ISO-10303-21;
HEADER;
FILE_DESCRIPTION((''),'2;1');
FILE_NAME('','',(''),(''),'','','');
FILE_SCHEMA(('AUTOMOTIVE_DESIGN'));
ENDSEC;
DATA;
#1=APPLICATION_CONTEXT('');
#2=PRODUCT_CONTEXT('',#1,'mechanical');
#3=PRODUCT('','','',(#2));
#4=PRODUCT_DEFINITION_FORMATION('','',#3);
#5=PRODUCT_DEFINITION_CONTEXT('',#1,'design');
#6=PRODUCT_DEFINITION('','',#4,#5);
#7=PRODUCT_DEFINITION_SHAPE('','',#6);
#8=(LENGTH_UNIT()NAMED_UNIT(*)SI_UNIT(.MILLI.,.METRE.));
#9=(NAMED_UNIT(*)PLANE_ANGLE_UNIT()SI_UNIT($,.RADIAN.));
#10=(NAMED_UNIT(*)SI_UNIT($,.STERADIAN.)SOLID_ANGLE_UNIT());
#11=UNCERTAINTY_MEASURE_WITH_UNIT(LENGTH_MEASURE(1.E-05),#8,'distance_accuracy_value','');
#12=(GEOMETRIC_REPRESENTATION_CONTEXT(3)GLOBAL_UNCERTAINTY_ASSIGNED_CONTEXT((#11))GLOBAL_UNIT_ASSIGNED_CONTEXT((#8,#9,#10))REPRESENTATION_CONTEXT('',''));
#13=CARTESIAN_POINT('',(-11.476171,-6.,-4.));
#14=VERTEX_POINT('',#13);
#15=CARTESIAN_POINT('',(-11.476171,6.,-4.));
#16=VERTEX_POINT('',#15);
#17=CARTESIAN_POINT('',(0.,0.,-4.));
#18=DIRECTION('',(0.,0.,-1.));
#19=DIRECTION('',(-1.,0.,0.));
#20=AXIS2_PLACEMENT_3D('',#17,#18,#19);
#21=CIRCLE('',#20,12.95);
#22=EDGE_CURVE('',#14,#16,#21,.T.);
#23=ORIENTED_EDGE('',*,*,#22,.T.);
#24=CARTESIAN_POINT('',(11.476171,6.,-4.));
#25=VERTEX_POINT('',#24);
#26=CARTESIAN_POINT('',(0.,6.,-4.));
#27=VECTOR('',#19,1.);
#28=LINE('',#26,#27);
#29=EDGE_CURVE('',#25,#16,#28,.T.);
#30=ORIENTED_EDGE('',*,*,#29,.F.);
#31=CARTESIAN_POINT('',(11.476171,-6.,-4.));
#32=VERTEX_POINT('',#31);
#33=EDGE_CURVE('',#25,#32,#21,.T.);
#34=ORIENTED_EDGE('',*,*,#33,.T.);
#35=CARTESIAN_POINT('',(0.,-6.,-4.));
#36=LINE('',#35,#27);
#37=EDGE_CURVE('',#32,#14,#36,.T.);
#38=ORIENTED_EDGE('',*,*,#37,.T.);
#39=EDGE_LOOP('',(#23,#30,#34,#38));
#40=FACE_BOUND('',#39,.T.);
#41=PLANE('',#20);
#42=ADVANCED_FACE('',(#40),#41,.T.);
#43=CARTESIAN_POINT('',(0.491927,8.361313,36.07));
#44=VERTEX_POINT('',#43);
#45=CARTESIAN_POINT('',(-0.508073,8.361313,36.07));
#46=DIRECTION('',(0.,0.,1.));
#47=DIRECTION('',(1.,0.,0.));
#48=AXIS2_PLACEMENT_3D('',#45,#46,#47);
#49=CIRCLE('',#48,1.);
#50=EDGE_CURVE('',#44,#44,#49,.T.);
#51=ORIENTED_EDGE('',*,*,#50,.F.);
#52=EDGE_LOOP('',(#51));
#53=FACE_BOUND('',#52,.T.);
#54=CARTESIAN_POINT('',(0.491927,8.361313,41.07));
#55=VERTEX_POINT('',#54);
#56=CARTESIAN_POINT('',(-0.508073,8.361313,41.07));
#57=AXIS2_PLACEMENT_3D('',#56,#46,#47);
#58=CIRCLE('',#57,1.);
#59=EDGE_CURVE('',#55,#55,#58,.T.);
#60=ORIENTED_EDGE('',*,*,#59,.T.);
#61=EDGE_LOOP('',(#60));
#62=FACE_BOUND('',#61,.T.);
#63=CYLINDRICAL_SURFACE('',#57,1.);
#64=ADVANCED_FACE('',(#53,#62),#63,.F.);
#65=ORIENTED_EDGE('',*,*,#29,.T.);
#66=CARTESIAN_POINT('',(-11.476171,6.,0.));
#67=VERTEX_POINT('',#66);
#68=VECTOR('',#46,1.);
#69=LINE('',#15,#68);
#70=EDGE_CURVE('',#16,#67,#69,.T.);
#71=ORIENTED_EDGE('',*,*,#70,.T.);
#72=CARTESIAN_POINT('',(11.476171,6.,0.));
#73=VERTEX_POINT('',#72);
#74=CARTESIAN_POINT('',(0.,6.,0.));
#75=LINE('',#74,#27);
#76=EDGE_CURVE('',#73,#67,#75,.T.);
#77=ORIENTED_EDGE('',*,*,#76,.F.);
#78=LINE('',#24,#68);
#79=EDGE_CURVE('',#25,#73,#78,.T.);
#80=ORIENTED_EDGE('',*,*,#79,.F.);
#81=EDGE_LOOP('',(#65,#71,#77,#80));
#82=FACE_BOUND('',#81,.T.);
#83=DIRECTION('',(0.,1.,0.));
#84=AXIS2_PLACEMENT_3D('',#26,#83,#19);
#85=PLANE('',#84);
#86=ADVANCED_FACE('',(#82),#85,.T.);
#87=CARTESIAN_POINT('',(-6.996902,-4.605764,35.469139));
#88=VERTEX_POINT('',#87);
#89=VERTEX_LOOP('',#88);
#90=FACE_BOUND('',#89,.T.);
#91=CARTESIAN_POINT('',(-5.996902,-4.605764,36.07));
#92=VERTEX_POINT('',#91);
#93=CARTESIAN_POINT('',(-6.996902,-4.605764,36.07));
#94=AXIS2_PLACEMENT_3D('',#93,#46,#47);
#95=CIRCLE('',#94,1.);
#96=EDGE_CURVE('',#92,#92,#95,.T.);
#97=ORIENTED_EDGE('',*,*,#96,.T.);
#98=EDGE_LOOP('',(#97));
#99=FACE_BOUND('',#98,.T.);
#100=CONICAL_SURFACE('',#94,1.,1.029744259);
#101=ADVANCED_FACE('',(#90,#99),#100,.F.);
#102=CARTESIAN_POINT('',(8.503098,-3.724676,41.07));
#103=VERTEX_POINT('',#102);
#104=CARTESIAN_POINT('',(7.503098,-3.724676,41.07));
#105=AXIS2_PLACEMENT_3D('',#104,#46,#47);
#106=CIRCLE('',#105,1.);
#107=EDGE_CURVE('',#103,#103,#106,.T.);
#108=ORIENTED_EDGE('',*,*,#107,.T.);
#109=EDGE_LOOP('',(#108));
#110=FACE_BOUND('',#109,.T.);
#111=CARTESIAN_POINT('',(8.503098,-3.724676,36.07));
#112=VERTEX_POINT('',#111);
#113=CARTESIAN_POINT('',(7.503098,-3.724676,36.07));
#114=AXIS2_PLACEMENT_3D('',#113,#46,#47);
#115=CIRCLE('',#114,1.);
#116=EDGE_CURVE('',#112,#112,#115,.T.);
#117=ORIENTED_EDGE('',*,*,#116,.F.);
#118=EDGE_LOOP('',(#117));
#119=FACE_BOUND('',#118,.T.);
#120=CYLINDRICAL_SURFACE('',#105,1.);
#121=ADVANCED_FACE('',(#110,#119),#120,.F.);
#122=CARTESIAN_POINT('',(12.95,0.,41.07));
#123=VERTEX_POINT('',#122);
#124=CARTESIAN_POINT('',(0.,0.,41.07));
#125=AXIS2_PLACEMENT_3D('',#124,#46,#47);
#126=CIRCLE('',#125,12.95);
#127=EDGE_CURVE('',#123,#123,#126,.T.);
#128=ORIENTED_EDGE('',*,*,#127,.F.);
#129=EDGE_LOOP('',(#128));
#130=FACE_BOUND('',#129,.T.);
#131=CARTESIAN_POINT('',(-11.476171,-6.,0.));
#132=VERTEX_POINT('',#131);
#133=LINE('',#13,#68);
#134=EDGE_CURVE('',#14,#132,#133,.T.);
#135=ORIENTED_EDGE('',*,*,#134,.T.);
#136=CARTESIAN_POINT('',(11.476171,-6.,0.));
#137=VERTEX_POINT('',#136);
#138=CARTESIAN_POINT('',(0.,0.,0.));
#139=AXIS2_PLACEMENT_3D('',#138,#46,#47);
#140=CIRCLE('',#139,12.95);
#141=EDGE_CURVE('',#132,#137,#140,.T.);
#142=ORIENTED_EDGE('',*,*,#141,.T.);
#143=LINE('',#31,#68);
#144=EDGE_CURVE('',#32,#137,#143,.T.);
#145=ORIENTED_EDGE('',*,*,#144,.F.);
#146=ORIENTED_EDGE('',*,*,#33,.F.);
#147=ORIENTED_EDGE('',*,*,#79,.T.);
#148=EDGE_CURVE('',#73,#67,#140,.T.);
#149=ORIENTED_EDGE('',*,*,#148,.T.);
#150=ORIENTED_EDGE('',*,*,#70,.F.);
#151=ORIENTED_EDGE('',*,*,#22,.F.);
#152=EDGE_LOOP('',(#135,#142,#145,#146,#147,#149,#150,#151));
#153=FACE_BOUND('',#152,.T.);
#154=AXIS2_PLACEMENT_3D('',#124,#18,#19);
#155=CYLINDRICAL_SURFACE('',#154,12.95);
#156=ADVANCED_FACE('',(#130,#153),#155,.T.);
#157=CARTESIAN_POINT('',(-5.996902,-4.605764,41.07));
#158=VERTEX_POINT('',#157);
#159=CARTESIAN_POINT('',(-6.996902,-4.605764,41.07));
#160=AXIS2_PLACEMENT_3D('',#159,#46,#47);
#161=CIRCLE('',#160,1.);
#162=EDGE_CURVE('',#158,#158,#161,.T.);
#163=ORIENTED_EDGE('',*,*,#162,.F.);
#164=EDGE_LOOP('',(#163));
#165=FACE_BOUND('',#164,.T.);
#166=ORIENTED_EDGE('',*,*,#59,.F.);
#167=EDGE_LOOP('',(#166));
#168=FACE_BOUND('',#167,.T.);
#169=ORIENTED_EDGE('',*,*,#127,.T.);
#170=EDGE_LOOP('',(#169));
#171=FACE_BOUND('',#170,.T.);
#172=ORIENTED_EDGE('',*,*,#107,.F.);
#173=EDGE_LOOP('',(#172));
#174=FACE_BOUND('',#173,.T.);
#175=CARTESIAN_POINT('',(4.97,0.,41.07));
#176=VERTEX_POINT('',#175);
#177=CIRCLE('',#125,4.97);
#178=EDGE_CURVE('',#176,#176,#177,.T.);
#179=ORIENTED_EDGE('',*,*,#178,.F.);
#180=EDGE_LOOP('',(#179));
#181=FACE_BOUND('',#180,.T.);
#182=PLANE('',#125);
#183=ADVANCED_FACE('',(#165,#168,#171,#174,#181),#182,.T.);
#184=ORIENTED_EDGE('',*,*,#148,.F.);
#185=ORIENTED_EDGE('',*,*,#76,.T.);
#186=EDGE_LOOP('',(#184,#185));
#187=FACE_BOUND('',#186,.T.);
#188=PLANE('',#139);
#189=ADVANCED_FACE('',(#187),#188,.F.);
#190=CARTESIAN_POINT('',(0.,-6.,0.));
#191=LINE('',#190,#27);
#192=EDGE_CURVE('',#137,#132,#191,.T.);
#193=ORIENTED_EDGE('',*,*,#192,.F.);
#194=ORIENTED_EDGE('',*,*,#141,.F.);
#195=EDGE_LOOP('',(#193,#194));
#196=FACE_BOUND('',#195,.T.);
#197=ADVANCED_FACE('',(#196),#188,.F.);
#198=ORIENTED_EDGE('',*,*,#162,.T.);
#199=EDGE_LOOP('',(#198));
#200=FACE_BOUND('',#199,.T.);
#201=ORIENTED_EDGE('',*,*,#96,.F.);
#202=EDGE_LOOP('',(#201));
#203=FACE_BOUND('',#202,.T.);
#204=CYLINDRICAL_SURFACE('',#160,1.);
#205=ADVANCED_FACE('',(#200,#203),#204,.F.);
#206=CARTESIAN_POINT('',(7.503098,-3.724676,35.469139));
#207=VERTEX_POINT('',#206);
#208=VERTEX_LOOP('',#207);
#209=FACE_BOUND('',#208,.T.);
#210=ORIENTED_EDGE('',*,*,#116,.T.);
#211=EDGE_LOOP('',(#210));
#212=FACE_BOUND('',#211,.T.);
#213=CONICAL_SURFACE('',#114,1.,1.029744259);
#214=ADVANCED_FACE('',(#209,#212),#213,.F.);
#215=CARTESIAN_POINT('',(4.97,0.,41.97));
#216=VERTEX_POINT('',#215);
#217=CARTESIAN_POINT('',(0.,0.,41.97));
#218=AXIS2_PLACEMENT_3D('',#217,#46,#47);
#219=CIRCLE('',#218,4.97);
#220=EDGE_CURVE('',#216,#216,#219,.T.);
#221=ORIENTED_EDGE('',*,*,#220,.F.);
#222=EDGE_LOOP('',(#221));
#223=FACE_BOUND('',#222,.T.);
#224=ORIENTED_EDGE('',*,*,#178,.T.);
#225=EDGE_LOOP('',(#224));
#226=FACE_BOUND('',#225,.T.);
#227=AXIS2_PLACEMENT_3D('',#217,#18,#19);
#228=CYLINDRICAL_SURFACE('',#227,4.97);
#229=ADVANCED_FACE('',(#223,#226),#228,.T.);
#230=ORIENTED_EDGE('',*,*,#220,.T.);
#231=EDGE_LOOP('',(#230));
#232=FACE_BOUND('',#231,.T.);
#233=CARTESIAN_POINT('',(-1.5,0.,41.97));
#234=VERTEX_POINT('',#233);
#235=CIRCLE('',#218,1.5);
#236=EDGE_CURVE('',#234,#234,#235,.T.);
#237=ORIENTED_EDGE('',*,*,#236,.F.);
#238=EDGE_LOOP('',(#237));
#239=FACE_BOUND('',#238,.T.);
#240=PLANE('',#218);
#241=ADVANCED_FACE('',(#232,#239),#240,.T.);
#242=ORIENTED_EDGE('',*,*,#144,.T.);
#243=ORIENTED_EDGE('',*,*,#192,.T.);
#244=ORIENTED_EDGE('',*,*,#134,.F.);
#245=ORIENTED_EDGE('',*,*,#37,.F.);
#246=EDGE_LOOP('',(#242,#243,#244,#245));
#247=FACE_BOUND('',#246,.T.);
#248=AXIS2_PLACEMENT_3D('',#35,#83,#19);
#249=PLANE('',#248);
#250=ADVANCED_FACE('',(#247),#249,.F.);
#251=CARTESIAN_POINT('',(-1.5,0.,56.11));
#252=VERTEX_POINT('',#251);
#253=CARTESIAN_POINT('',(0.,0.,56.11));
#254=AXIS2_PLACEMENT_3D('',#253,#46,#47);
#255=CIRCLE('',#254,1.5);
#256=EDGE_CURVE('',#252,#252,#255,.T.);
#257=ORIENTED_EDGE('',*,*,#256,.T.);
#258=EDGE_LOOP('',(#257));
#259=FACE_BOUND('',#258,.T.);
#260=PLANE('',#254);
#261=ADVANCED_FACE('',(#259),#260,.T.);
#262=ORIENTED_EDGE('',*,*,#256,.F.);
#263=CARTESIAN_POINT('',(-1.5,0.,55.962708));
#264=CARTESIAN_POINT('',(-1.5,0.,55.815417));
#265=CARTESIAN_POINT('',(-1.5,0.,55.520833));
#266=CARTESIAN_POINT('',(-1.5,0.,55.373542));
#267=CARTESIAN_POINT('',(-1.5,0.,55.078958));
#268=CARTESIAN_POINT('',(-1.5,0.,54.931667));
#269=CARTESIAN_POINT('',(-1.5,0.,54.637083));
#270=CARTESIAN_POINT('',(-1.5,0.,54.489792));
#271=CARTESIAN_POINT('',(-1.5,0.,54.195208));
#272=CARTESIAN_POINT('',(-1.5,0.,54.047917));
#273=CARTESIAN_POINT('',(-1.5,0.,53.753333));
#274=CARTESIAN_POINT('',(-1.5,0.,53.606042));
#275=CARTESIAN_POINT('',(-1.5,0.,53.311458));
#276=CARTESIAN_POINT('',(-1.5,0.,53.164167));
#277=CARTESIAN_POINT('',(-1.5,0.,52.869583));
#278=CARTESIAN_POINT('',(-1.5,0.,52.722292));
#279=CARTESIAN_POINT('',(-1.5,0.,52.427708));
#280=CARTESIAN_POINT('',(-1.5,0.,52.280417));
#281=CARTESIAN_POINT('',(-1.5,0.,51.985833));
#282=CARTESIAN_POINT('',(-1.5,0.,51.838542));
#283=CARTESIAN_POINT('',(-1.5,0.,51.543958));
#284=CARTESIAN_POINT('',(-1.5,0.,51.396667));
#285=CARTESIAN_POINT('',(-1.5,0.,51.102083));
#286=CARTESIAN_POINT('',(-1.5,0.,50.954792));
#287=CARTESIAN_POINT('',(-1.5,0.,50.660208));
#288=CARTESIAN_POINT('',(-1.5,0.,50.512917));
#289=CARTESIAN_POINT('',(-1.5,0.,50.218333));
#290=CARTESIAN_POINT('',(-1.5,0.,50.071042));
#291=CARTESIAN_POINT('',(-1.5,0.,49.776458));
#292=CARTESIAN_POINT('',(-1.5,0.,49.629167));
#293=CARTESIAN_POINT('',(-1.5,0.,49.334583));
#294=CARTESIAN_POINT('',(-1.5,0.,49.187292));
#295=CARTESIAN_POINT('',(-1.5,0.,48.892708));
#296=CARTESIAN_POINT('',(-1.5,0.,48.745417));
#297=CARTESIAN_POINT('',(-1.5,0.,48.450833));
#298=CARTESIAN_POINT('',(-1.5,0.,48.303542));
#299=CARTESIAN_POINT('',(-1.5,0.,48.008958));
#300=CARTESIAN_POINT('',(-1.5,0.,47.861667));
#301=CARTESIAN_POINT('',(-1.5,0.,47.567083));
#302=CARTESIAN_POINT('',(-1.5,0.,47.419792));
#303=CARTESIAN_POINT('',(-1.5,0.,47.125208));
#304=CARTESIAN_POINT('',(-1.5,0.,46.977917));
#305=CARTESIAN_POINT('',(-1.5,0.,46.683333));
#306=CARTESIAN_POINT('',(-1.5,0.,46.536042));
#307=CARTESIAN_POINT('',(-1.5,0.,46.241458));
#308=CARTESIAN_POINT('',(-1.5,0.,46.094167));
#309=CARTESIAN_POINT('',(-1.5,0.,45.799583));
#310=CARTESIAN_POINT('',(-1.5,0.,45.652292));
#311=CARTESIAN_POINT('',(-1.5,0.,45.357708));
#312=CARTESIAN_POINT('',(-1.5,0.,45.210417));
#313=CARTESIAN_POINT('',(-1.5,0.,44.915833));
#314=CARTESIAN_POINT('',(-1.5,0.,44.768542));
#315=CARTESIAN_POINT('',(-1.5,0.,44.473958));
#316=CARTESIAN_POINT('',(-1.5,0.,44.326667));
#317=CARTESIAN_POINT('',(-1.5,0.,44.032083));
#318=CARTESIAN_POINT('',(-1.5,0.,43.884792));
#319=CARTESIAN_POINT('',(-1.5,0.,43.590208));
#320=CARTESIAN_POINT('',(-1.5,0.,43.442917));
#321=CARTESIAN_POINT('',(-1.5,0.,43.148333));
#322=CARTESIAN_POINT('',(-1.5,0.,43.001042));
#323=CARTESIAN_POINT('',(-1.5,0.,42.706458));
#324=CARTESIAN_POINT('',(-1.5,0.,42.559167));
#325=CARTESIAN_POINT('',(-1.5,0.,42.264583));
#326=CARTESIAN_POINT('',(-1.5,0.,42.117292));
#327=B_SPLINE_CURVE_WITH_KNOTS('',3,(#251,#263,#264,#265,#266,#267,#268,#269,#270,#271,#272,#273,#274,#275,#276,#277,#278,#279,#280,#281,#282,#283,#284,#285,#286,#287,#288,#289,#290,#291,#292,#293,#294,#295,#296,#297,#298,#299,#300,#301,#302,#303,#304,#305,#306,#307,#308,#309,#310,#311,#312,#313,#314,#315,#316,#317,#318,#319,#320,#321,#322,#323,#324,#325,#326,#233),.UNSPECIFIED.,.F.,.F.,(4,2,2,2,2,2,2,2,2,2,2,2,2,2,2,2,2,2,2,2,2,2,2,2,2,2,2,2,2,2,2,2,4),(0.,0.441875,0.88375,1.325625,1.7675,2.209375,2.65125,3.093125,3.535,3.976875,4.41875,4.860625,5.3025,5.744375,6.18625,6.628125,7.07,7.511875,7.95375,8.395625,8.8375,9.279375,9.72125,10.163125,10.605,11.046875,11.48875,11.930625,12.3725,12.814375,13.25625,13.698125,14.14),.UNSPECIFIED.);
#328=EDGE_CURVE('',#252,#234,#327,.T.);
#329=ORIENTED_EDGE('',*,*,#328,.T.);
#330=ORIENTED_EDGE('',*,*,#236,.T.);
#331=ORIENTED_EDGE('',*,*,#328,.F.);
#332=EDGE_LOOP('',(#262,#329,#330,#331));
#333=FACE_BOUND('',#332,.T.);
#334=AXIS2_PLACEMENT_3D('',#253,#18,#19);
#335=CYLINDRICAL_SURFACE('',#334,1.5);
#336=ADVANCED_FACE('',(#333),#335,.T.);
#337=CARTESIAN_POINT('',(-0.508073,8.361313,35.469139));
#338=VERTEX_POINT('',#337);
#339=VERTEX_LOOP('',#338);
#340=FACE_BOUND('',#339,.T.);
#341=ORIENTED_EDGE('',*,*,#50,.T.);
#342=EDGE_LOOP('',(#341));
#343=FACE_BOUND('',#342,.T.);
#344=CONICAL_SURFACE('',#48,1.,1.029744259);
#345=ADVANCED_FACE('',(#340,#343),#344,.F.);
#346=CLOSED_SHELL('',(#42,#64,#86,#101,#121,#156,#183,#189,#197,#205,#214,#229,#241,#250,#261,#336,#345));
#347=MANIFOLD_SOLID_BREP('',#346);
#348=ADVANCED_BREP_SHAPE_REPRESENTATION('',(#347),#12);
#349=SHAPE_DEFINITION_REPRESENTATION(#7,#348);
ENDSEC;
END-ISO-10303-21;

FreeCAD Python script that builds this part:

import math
import FreeCAD as App
import Part
import Sketcher

doc = App.newDocument("Part")
body = doc.addObject("PartDesign::Body", "Body")

sketch1 = body.newObject("Sketcher::SketchObject", "Sketch")
sketch1.AttachmentSupport = (doc.getObject("XY_Plane"), [""])
sketch1.MapMode = "FlatFace"
sketch1.addGeometry(Part.Circle(App.Vector(0, 0, 0), App.Vector(0, 0, 1), 12.95), False)
sketch1.addConstraint([
    Sketcher.Constraint("Coincident", 0, 3, -1, 1),
    Sketcher.Constraint("Diameter", 0, 25.9),
])
pad1 = body.newObject("PartDesign::Pad", "Pad")
pad1.Profile = sketch1
pad1.Length = 41.07

sketch2 = body.newObject("Sketcher::SketchObject", "Sketch001")
sketch2.AttachmentSupport = (doc.getObject("XY_Plane"), [""])
sketch2.MapMode = "FlatFace"
sketch2.AttachmentOffset = App.Placement(App.Vector(0, 0, 41.07), App.Rotation())
sketch2.addGeometry(Part.Circle(App.Vector(0, 0, 0), App.Vector(0, 0, 1), 4.97), False)
sketch2.addConstraint([
    Sketcher.Constraint("Coincident", 0, 3, -1, 1),
    Sketcher.Constraint("Diameter", 0, 9.94),
])
pad2 = body.newObject("PartDesign::Pad", "Pad001")
pad2.Profile = sketch2
pad2.Length = 0.9

sketch3 = body.newObject("Sketcher::SketchObject", "Sketch002")
sketch3.AttachmentSupport = (doc.getObject("XY_Plane"), [""])
sketch3.MapMode = "FlatFace"
sketch3.AttachmentOffset = App.Placement(App.Vector(0, 0, 41.97), App.Rotation())
sketch3.addGeometry(Part.Circle(App.Vector(0, 0, 0), App.Vector(0, 0, 1), 1.5), False)
sketch3.addConstraint([
    Sketcher.Constraint("Coincident", 0, 3, -1, 1),
    Sketcher.Constraint("Diameter", 0, 3.0),
])
pad3 = body.newObject("PartDesign::Pad", "Pad002")
pad3.Profile = sketch3
pad3.Length = 14.14

sketch4 = body.newObject("Sketcher::SketchObject", "Sketch003")
sketch4.AttachmentSupport = (doc.getObject("XY_Plane"), [""])
sketch4.MapMode = "FlatFace"
sketch4.AttachmentOffset = App.Placement(App.Vector(0, 0, 41.07), App.Rotation())
sketch4.addGeometry([
    Part.Circle(App.Vector(-0.508073, 8.361313, 0), App.Vector(0, 0, 1), 1),
    Part.Circle(App.Vector(7.503098, -3.724676, 0), App.Vector(0, 0, 1), 1),
    Part.Circle(App.Vector(-6.996902, -4.605764, 0), App.Vector(0, 0, 1), 1),
], False)
sketch4.addConstraint([
    Sketcher.Constraint("Equal", 0, 1),
    Sketcher.Constraint("Equal", 1, 2),
    Sketcher.Constraint("Diameter", 0, 2.0),
    Sketcher.Constraint("DistanceX", 2, 3, 1, 3, 14.5),
    Sketcher.Constraint("DistanceX", -1, 1, 1, 3, 7.503098),
    Sketcher.Constraint("DistanceX", 0, 3, 1, 3, 8.011171),
    Sketcher.Constraint("DistanceY", 1, 3, 0, 3, 12.085989),
    Sketcher.Constraint("DistanceY", 2, 3, 1, 3, 0.881089),
    Sketcher.Constraint("DistanceY", -1, 1, 0, 3, 8.361313),
])
doc.recompute()
hole = body.newObject("PartDesign::Hole", "Hole")
hole.Profile = sketch4
hole.ThreadType = "None"
hole.Diameter = 2
hole.DepthType = "Dimension"
hole.Depth = 5
hole.DrillPoint = "Angled"
hole.DrillPointAngle = 118

sketch5 = body.newObject("Sketcher::SketchObject", "Sketch004")
sketch5.AttachmentSupport = (doc.getObject("XY_Plane"), [""])
sketch5.MapMode = "FlatFace"
sketch5.AttachmentOffset = App.Placement(App.Vector(0, 0, -4), App.Rotation())
sketch5.addGeometry([
    Part.ArcOfCircle(Part.Circle(App.Vector(0, 0, 0), App.Vector(0, 0, 1), 12.95), math.radians(-27.601579), math.radians(27.601579)),
    Part.LineSegment(App.Vector(11.476171, -6, 0), App.Vector(-11.476171, -6, 0)),
    Part.ArcOfCircle(Part.Circle(App.Vector(0, 0, 0), App.Vector(0, 0, 1), 12.95), math.radians(180), math.radians(207.601579)),
    Part.ArcOfCircle(Part.Circle(App.Vector(0, 0, 0), App.Vector(0, 0, 1), 12.95), math.radians(152.398421), math.radians(180)),
    Part.LineSegment(App.Vector(-11.476171, 6, 0), App.Vector(11.476171, 6, 0)),
], False)
sketch5.addConstraint([
    Sketcher.Constraint("Coincident", 0, 1, 1, 1),
    Sketcher.Constraint("Coincident", 1, 2, 2, 2),
    Sketcher.Constraint("Tangent", 2, 1, 3, 2),
    Sketcher.Constraint("Coincident", 3, 1, 4, 1),
    Sketcher.Constraint("Coincident", 4, 2, 0, 2),
    Sketcher.Constraint("Horizontal", 1),
    Sketcher.Constraint("Horizontal", 4),
    Sketcher.Constraint("Coincident", 0, 3, -1, 1),
    Sketcher.Constraint("Coincident", 2, 3, -1, 1),
    Sketcher.Constraint("Equal", 0, 2),
    Sketcher.Constraint("Equal", 2, 3),
    Sketcher.Constraint("PointOnObject", 2, 1, -1),
    Sketcher.Constraint("Vertical", 1, 2, 3, 1),
    Sketcher.Constraint("Radius", 0, 12.95),
    Sketcher.Constraint("DistanceY", 0, 1, -1, 1, 6.0),
])
pad4 = body.newObject("PartDesign::Pad", "Pad003")
pad4.Profile = sketch5
pad4.Length = 4

doc.recompute()
